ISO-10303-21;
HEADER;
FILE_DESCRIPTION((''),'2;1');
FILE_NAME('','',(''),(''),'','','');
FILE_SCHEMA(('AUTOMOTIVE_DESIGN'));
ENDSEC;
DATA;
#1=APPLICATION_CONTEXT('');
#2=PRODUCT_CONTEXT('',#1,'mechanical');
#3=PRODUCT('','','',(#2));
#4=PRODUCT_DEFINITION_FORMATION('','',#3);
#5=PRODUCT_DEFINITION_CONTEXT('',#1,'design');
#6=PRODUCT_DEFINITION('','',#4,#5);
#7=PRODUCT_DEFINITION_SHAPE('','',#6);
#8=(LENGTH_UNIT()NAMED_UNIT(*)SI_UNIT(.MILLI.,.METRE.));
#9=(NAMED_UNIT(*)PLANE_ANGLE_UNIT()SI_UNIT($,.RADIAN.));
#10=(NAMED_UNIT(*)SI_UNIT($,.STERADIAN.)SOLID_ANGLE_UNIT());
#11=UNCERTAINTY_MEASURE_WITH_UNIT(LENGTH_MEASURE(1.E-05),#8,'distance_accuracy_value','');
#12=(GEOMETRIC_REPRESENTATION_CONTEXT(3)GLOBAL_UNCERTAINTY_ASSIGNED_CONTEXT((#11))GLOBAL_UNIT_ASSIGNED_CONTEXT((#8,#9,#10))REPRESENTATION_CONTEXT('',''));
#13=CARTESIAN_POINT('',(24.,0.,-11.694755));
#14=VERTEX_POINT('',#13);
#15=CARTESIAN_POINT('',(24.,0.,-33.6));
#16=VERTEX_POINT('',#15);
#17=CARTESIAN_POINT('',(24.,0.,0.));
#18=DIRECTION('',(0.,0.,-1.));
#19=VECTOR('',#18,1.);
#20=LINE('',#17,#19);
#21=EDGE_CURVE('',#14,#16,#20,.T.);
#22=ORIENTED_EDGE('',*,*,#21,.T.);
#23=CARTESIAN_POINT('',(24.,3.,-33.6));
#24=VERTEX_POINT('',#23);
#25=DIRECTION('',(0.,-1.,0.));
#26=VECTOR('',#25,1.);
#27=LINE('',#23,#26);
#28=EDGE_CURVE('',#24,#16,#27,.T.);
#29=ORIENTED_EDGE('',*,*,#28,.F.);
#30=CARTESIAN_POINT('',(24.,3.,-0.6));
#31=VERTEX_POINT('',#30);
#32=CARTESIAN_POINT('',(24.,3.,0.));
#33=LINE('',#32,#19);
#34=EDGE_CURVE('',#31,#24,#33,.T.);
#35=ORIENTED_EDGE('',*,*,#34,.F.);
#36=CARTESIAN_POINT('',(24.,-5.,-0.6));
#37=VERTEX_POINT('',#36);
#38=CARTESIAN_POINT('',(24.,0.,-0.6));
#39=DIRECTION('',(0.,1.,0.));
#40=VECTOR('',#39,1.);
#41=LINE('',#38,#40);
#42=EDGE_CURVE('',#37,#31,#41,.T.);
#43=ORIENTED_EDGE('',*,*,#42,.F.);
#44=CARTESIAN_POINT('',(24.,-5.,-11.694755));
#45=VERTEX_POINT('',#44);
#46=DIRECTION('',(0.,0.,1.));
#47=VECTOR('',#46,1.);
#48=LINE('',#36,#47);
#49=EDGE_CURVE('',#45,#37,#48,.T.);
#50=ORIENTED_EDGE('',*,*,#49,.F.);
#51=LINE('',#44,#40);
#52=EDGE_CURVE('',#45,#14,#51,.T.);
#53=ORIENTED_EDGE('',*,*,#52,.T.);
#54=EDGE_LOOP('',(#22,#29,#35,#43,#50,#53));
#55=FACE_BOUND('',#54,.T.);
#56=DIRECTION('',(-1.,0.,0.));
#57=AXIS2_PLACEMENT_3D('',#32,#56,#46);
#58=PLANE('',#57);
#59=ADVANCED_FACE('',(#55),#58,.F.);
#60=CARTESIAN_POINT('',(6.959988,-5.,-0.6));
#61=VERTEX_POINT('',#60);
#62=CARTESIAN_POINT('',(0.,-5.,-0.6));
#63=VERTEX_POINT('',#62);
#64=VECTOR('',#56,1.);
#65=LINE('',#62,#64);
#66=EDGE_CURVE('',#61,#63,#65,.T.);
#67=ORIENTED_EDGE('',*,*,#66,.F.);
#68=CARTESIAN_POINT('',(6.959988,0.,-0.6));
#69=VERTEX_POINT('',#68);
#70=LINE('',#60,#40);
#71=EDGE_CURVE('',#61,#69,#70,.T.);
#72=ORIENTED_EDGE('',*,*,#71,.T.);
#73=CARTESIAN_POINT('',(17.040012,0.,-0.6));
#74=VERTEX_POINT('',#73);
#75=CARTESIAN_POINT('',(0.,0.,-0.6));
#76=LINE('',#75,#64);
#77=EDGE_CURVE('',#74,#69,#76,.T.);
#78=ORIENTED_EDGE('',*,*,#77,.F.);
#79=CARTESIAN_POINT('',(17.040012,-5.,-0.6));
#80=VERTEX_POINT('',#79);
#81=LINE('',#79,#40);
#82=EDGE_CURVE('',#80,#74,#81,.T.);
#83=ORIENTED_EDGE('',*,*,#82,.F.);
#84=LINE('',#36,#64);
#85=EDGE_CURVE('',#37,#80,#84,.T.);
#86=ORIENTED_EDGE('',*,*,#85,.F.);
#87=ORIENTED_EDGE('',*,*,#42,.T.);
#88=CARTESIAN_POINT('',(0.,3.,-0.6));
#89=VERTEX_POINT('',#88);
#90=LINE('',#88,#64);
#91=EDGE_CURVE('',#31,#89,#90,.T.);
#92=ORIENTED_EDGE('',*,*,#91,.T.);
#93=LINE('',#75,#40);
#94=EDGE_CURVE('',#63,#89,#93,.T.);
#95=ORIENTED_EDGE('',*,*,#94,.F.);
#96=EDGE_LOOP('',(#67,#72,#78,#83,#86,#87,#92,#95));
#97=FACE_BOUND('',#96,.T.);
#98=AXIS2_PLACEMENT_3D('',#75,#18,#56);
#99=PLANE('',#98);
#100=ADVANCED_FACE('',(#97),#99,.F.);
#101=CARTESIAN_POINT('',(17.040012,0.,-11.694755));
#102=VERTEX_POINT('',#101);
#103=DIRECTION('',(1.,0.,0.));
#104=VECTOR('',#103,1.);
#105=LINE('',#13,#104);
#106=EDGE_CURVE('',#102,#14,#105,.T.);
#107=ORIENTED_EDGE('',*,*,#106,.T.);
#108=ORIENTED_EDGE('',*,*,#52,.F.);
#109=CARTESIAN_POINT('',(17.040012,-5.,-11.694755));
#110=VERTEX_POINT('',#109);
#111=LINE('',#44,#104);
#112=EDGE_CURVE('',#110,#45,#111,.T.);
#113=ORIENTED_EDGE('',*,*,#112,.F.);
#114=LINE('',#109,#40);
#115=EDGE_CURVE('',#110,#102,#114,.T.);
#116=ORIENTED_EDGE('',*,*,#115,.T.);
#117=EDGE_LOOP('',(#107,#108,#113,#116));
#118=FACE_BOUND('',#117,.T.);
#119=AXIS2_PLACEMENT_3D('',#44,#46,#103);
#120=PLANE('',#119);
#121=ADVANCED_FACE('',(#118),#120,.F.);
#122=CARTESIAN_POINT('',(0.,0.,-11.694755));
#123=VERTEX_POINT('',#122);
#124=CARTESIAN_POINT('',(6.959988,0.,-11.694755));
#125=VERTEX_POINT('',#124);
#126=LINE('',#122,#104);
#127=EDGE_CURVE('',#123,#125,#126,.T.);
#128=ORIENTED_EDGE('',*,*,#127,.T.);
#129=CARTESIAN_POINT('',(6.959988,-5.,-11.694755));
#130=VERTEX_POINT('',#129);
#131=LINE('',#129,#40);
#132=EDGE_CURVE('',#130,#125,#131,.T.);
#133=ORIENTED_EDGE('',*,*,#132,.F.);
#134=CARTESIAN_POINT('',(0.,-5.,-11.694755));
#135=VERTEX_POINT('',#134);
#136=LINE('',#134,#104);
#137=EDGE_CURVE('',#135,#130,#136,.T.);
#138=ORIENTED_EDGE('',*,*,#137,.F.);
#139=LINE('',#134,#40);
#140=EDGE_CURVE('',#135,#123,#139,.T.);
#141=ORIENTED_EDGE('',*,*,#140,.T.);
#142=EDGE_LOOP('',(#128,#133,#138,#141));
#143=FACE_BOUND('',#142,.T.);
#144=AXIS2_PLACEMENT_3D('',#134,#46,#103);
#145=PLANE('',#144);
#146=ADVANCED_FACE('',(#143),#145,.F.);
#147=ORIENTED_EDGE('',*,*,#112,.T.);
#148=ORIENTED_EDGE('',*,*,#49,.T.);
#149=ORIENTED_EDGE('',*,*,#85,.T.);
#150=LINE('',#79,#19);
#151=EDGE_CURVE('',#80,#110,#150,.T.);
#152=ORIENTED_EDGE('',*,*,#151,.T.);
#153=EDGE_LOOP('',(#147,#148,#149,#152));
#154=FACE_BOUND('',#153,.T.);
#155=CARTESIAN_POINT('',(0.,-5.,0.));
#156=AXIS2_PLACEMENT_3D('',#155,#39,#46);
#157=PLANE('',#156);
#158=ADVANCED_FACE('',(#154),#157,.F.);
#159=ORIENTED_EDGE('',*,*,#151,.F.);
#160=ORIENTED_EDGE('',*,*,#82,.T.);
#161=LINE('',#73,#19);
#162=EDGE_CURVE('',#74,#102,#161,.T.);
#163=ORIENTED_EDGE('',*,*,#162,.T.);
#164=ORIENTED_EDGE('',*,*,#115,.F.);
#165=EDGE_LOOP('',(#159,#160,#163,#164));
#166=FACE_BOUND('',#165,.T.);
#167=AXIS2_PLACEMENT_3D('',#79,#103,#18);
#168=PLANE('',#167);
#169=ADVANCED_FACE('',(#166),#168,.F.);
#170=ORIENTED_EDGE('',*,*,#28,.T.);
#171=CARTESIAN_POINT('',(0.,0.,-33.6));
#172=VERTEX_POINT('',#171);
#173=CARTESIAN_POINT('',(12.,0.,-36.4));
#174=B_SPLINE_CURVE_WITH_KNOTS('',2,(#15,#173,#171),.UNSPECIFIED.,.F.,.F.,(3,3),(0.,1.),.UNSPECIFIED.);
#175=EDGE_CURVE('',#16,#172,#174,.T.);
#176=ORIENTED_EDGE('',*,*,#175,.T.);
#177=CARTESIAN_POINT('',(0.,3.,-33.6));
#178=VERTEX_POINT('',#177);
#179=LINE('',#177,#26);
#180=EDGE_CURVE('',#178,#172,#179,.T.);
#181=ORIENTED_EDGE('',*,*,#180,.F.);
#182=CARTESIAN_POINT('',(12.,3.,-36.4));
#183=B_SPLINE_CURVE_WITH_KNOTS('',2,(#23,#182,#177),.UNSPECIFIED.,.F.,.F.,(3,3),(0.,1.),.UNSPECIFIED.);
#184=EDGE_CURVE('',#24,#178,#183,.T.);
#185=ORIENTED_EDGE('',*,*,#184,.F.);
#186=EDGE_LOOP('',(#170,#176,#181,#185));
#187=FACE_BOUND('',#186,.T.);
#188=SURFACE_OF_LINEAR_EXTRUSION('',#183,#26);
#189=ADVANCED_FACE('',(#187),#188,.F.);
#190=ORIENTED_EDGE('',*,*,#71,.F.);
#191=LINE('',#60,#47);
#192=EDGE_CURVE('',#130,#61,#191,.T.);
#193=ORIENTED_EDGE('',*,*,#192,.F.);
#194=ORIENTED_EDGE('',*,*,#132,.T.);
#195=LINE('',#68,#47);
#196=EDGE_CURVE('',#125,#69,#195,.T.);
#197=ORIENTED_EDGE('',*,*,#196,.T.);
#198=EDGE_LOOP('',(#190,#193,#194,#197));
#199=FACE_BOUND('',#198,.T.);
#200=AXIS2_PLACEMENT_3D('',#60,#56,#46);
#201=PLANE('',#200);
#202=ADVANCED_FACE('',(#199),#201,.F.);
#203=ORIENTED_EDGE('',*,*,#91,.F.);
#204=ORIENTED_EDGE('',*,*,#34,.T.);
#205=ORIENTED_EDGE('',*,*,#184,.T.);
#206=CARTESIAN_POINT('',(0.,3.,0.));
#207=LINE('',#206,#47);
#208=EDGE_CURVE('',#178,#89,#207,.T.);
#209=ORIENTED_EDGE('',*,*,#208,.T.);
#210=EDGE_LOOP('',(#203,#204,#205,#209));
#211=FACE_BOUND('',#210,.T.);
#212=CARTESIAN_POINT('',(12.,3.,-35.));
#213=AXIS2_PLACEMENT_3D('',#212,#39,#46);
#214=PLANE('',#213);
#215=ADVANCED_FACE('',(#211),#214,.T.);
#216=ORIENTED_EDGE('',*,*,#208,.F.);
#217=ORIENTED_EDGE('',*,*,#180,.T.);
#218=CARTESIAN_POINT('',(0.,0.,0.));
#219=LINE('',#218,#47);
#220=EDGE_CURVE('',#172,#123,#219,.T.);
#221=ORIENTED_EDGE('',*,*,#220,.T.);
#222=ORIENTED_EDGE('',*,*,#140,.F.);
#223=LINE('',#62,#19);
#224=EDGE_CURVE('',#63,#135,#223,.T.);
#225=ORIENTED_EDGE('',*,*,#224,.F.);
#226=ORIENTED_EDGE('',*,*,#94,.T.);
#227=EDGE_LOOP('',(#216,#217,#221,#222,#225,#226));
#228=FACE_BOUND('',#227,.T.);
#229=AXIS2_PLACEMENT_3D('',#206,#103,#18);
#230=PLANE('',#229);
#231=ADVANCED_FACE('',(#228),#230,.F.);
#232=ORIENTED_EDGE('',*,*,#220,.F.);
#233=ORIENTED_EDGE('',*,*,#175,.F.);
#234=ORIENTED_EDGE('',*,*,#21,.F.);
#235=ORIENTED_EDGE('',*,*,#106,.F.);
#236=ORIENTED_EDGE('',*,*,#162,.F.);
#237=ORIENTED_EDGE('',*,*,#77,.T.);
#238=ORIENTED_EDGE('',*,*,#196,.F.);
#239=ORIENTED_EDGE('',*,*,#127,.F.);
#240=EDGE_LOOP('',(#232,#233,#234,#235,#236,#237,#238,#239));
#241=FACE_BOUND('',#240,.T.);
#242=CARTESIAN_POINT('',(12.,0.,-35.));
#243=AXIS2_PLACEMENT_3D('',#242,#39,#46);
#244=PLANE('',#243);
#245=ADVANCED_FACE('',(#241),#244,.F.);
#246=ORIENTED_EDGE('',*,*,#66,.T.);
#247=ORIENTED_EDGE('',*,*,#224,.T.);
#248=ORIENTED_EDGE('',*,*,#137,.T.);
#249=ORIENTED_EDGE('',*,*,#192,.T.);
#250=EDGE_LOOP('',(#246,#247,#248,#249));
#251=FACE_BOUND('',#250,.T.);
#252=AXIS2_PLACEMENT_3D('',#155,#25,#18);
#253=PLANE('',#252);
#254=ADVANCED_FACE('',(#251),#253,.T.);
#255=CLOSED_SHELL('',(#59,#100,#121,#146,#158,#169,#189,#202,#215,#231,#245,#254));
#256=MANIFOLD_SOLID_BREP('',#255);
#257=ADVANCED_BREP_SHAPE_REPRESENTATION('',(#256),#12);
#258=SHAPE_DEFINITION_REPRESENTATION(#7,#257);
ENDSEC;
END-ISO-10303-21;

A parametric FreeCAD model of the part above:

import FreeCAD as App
import Part
import Sketcher
from FreeCAD import Vector
Q = App.Units.Quantity


def add_polygon(sketch, points):
    """Adds a closed chain of lines whose ends are joined by coincident constraints."""
    first, n = sketch.GeometryCount, len(points)
    for a, b in zip(points, points[1:] + points[:1]):
        sketch.addGeometry(Part.LineSegment(App.Vector(*a, 0), App.Vector(*b, 0)), False)
    for i in range(n):
        sketch.addConstraint(Sketcher.Constraint("Coincident", first + i, 2, first + (i + 1) % n, 1))

doc = App.newDocument("Part")
body = doc.addObject("PartDesign::Body", "Body")

# Sketch on XZ plane
sketch1 = body.newObject("Sketcher::SketchObject", "Sketch")
sketch1.AttachmentSupport = (doc.getObject("XZ_Plane"), [""])
sketch1.MapMode = "FlatFace"
sketch1.addGeometry([
    Part.LineSegment(Vector(0, 0, 0), Vector(24, 0, 0)),
    Part.LineSegment(Vector(24, 0, 0), Vector(24, -33.6, 0)),
    Part.BSplineCurve([Vector(0, -33.6, 0), Vector(12, -36.4, 0), Vector(24, -33.6, 0)], [3, 3], [0, 1], False, 2, [1, 1, 1], False),
    Part.LineSegment(Vector(0, -33.6, 0), Vector(0, 0, 0)),
], False)
sketch1.addConstraint([
    Sketcher.Constraint("Block", 2),
    Sketcher.Constraint("Coincident", 0, 2, 1, 1),
    Sketcher.Constraint("Coincident", 1, 2, 2, 2),
    Sketcher.Constraint("Coincident", 2, 1, 3, 1),
    Sketcher.Constraint("Coincident", 3, 2, 0, 1),
    Sketcher.Constraint("Horizontal", 0),
    Sketcher.Constraint("Vertical", 1),
    Sketcher.Constraint("Vertical", 3),
    Sketcher.Constraint("PointOnObject", 0, 2, -1),
])
pad1 = body.newObject("PartDesign::Pad", "Pad")
pad1.Profile = sketch1
pad1.Length = 3
pad1.Reversed = True

# Sketch on XZ plane
sketch2 = body.newObject("Sketcher::SketchObject", "Sketch001")
sketch2.AttachmentSupport = (doc.getObject("XZ_Plane"), [""])
sketch2.MapMode = "FlatFace"
sketch2.AttachmentOffset = App.Placement(Vector(0, 0, -3), App.Rotation())
add_polygon(sketch2, [(0, -0.6), (0, 0), (24, 0), (24, -0.6)])  # lines 0-3
sketch2.addConstraint([
    Sketcher.Constraint("Vertical", 0),
    Sketcher.Constraint("Horizontal", 1),
    Sketcher.Constraint("Vertical", 2),
    Sketcher.Constraint("Horizontal", 3),
    Sketcher.Constraint("Coincident", 0, 2, -1, 1),
    Sketcher.Constraint("DistanceX", 1, 1, 1, 2, Q("24 mm")),
    Sketcher.Constraint("DistanceY", 0, 1, 0, 2, Q("0.6 mm")),
])
pocket1 = body.newObject("PartDesign::Pocket", "Pocket")
pocket1.Profile = sketch2
pocket1.Type = "ThroughAll"
pocket1.Reversed = True

# Sketch on XZ plane
sketch3 = body.newObject("Sketcher::SketchObject", "Sketch002")
sketch3.AttachmentSupport = (doc.getObject("XZ_Plane"), [""])
sketch3.MapMode = "FlatFace"
add_polygon(sketch3, [(0, -1), (0, -12), (7, -12), (7, -1)])  # lines 0-3
add_polygon(sketch3, [(17, -1), (17, -12), (24, -12), (24, -1)])  # lines 4-7
sketch3.addConstraint([
    Sketcher.Constraint("Vertical", 0),
    Sketcher.Constraint("Horizontal", 1),
    Sketcher.Constraint("Vertical", 2),
    Sketcher.Constraint("Horizontal", 3),
    Sketcher.Constraint("Vertical", 4),
    Sketcher.Constraint("Horizontal", 5),
    Sketcher.Constraint("Vertical", 6),
    Sketcher.Constraint("Horizontal", 7),
    Sketcher.Constraint("PointOnObject", 0, 2, -2),
    Sketcher.Constraint("Horizontal", 1, 2, 4, 2),
    Sketcher.Constraint("Horizontal", 3, 2, 6, 2),
    Sketcher.Constraint("Equal", 3, 5),
    Sketcher.Constraint("DistanceX", -1, 1, 5, 2, Q("24 mm")),
    Sketcher.Constraint("DistanceY", 2, 2, -1, 1, Q("0.6 mm")),
    Sketcher.Constraint("DistanceX", 1, 1, 1, 2, Q("6.959988 mm")),
    Sketcher.Constraint("DistanceY", 0, 2, 0, 1, Q("11.094755 mm")),
])
pad2 = body.newObject("PartDesign::Pad", "Pad001")
pad2.Profile = sketch3
pad2.Length = 5

doc.recompute()
